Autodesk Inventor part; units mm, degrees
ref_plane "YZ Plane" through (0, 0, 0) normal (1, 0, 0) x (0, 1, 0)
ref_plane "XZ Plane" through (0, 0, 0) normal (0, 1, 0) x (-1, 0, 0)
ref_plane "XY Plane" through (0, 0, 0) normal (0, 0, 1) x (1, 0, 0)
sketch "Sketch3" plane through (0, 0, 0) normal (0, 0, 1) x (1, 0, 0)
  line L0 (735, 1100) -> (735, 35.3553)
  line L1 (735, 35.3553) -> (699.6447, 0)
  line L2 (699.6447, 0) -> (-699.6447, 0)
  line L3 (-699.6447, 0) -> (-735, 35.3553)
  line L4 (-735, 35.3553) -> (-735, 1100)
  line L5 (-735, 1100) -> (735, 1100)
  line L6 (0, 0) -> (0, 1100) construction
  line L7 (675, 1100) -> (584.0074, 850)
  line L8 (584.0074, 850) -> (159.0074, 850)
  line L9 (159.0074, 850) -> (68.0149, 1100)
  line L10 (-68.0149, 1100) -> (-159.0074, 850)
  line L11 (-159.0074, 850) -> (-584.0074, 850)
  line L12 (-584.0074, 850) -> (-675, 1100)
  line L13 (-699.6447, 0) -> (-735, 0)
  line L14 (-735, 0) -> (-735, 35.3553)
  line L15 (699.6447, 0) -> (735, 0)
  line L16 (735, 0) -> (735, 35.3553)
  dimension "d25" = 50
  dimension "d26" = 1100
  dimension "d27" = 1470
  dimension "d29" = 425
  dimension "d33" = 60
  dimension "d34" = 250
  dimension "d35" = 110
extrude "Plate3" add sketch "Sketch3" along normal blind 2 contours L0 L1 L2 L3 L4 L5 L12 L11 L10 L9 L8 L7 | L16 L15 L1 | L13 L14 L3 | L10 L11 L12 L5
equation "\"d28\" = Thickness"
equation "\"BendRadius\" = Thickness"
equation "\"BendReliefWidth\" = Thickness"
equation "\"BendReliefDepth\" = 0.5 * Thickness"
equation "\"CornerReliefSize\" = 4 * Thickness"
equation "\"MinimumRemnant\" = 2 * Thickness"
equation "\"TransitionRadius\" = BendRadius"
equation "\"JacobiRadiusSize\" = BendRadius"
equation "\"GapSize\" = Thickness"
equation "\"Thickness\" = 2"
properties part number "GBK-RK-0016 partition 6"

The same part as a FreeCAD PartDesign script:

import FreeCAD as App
import Part
import Sketcher

V = App.Vector
Q = App.Units.Quantity


def add_polygon(sketch, points):
    """Adds a closed chain of lines whose ends are joined by coincident constraints."""
    first, n = sketch.GeometryCount, len(points)
    for a, b in zip(points, points[1:] + points[:1]):
        sketch.addGeometry(Part.LineSegment(App.Vector(*a, 0), App.Vector(*b, 0)), False)
    for i in range(n):
        sketch.addConstraint(Sketcher.Constraint("Coincident", first + i, 2, first + (i + 1) % n, 1))

doc = App.newDocument("Part")
body = doc.addObject("PartDesign::Body", "Body")

sketch1 = body.newObject("Sketcher::SketchObject", "Sketch")
sketch1.AttachmentSupport = (doc.getObject("XY_Plane"), [""])
sketch1.MapMode = "FlatFace"
add_polygon(sketch1, [(735, 1100), (675, 1100), (584.0074, 850), (159.0074, 850), (68.0149, 1100), (-735, 1100), (-735, 0), (735, 0)])
sketch1.addConstraint(Sketcher.Constraint("Horizontal", 0))
sketch1.addConstraint(Sketcher.Constraint("Horizontal", 2))
sketch1.addConstraint(Sketcher.Constraint("Horizontal", 4))
sketch1.addConstraint(Sketcher.Constraint("Vertical", 5))
sketch1.addConstraint(Sketcher.Constraint("Horizontal", 6))
sketch1.addConstraint(Sketcher.Constraint("Vertical", 7))
sketch1.addConstraint(Sketcher.Constraint("Symmetric", 5, 2, 6, 2, -1, 1))
sketch1.addConstraint(Sketcher.Constraint("Horizontal", 0, 2, 3, 2))
sketch1.addConstraint(Sketcher.Constraint("Equal", 1, 3))
sketch1.addConstraint(Sketcher.Constraint("DistanceX", 0, 2, 0, 1, Q("60 mm")))
sketch1.addConstraint(Sketcher.Constraint("DistanceX", 2, 2, 2, 1, Q("425 mm")))
sketch1.addConstraint(Sketcher.Constraint("DistanceX", 6, 1, 6, 2, Q("1470 mm")))
sketch1.addConstraint(Sketcher.Constraint("DistanceY", 5, 2, 5, 1, Q("1100 mm")))
sketch1.addConstraint(Sketcher.Constraint("Angle", 1, Q("-110 deg")))
sketch1.addConstraint(Sketcher.Constraint("DistanceY", 1, 2, 0, 2, Q("250 mm")))
pad1 = body.newObject("PartDesign::Pad", "Pad")
pad1.Profile = sketch1
pad1.Length = 2

doc.recompute()
